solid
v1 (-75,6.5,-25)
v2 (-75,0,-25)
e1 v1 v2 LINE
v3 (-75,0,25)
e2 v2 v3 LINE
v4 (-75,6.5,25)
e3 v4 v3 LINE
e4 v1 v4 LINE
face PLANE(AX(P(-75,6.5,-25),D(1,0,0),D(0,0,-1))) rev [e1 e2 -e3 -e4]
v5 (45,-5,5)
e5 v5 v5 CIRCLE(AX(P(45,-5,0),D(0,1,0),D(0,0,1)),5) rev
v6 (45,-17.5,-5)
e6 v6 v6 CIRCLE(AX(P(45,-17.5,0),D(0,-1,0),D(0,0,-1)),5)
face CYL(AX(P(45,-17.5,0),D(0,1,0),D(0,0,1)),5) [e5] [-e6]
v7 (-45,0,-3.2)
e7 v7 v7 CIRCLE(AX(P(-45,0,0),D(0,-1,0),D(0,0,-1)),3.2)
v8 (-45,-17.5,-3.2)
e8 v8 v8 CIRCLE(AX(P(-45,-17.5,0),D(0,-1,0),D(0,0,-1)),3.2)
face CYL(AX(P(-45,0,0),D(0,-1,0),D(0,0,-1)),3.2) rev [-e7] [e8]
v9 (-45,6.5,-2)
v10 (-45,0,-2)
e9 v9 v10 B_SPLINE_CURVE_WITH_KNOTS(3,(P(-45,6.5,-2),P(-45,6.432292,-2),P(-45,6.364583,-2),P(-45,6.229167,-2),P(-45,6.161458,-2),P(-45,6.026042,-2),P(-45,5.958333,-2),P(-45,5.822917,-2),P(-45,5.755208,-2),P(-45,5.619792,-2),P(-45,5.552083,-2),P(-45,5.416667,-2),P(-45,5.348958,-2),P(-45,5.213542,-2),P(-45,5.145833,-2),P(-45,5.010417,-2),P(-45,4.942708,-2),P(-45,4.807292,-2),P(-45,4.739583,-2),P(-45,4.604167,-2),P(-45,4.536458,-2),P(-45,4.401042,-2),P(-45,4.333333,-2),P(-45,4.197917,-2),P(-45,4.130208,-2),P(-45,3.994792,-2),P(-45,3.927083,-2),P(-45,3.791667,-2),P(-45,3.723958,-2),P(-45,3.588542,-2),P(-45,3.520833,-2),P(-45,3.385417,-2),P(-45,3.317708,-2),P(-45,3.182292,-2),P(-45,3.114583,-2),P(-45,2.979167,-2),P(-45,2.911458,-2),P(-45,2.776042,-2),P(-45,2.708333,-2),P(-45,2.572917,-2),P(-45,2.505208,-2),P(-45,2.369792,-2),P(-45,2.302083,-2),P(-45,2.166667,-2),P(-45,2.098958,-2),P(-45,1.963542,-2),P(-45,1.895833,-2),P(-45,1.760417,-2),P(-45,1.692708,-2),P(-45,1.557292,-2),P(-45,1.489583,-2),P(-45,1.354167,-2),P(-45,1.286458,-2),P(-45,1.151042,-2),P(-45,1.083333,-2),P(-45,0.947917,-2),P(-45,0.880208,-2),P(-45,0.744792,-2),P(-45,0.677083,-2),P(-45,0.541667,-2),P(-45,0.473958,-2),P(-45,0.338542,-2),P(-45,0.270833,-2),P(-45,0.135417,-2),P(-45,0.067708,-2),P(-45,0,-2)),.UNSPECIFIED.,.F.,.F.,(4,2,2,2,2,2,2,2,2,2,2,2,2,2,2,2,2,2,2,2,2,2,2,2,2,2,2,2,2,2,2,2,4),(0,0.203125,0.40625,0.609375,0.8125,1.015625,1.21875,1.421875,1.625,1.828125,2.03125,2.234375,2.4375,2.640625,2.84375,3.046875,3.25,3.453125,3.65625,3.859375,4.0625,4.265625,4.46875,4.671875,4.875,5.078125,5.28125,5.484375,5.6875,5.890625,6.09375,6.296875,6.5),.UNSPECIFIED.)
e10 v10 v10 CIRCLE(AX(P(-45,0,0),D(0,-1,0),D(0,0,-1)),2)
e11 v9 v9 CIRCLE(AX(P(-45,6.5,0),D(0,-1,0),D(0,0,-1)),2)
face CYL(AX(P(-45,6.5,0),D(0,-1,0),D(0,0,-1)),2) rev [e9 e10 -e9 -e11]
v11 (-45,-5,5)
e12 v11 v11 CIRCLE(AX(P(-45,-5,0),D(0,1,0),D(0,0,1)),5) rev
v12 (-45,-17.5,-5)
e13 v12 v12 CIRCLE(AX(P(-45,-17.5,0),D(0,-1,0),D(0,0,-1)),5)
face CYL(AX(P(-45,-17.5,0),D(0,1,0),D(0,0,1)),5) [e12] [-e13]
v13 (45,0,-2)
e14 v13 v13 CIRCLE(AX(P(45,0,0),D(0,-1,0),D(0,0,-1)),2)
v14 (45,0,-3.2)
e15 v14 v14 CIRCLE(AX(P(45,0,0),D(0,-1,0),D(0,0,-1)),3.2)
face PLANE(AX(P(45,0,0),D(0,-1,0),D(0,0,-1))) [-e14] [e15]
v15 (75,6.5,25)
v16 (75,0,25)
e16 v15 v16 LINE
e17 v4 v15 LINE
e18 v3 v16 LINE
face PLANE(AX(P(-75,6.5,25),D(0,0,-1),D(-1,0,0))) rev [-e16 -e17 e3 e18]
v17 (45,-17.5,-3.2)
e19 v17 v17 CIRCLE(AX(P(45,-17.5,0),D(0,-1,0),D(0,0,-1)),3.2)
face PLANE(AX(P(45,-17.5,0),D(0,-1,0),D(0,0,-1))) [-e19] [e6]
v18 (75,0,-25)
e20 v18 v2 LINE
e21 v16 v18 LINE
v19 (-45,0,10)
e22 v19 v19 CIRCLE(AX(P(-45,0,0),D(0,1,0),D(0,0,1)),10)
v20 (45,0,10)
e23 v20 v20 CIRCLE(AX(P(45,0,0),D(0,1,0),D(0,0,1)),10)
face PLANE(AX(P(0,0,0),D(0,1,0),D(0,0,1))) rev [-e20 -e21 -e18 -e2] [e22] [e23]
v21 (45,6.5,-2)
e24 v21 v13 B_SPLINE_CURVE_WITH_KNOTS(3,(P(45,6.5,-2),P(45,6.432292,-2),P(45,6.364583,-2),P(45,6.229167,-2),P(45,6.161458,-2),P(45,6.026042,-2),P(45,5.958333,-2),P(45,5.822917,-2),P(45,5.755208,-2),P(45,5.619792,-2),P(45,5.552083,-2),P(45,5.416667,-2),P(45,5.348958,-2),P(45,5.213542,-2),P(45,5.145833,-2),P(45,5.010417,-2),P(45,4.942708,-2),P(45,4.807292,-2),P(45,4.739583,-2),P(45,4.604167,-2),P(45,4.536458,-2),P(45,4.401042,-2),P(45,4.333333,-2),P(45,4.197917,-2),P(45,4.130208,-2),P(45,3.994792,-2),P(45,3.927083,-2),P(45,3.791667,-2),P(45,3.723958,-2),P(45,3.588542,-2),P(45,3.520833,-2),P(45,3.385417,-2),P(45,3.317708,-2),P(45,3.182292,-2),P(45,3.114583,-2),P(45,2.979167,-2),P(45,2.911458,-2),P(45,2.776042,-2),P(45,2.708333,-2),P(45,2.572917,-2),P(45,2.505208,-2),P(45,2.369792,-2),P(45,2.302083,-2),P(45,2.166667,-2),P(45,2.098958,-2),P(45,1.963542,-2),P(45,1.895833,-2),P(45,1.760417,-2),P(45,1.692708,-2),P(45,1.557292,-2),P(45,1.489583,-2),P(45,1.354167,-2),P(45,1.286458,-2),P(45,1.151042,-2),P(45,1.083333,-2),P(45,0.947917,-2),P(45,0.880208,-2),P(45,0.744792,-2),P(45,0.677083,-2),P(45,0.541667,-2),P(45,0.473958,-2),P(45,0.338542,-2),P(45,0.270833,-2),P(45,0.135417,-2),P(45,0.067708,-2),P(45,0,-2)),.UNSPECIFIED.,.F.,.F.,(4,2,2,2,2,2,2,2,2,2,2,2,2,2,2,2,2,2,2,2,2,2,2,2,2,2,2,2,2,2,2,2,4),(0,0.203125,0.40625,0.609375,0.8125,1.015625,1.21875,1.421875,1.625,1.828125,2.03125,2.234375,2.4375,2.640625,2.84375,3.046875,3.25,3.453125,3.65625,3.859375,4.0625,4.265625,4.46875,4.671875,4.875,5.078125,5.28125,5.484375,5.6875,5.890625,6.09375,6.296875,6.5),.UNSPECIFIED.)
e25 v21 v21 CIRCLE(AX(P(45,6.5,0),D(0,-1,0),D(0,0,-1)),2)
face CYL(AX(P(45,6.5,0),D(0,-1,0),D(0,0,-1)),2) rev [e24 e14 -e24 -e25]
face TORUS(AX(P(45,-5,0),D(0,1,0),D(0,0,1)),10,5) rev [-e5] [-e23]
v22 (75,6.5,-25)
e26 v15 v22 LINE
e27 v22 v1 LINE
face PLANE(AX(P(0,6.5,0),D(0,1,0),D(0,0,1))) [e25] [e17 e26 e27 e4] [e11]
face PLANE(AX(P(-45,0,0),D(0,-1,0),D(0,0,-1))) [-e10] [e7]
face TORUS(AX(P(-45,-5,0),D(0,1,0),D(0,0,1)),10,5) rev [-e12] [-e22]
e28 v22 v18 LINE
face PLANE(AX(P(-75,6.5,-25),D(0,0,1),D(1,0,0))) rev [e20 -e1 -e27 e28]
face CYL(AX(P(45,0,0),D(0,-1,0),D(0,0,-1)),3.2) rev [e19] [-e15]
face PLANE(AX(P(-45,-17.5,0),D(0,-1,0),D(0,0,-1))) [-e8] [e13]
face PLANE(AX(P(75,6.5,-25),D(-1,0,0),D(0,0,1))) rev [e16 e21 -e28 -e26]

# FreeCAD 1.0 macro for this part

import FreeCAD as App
import Part
import Sketcher


def edges_at(feature, points):
    """Names of the edges that pass closest to the given points."""
    edges = feature.Shape.Edges
    near = lambda p: min(range(len(edges)), key=lambda i: edges[i].distToShape(Part.Vertex(*p))[0])
    return sorted({f"Edge{near(p) + 1}" for p in points})


def add_polygon(sketch, points):
    """Adds a closed chain of lines whose ends are joined by coincident constraints."""
    first, n = sketch.GeometryCount, len(points)
    for a, b in zip(points, points[1:] + points[:1]):
        sketch.addGeometry(Part.LineSegment(App.Vector(*a, 0), App.Vector(*b, 0)), False)
    for i in range(n):
        sketch.addConstraint(Sketcher.Constraint("Coincident", first + i, 2, first + (i + 1) % n, 1))

doc = App.newDocument("Part")
params = doc.addObject("Spreadsheet::Sheet", "Params")
for row, (alias, value) in enumerate([
    ("sketch1_width", "150 mm"),
    ("sketch1_height", "50 mm"),
    ("pad1_length", "6.5 mm"),
    ("sketch2_diameter", "10 mm"),
    ("pad2_length", "17.5 mm"),
    ("fillet_radius", "5 mm"),
    ("sketch3_diameter", "6.4 mm"),
    ("pocket1_length", "17.5 mm"),
    ("sketch4_diameter", "4 mm"),
    ("pocket2_length", "6.5 mm"),
], start=1):
    params.set(f"A{row}", alias)
    params.set(f"B{row}", "=" + value)
    params.setAlias(f"B{row}", alias)

body = doc.addObject("PartDesign::Body", "Body")

# Sketch on XZ plane
sketch1 = body.newObject("Sketcher::SketchObject", "Sketch")
sketch1.AttachmentSupport = (doc.getObject("XZ_Plane"), [""])
sketch1.MapMode = "FlatFace"
add_polygon(sketch1, [(-75, -25), (-75, 25), (75, 25), (75, -25)])  # lines 0-3
sketch1.addConstraint([
    Sketcher.Constraint("Vertical", 0),
    Sketcher.Constraint("Horizontal", 1),
    Sketcher.Constraint("Vertical", 2),
    Sketcher.Constraint("Horizontal", 3),
    Sketcher.Constraint("Symmetric", 0, 2, 2, 2, -1, 1),
    Sketcher.Constraint("DistanceX", 1, 1, 1, 2, 150.0),
    Sketcher.Constraint("DistanceY", 0, 1, 0, 2, 50.0),
])
sketch1.setExpression("Constraints[9]", "Params.sketch1_width")
sketch1.setExpression("Constraints[10]", "Params.sketch1_height")
pad1 = body.newObject("PartDesign::Pad", "Pad")
pad1.Profile = sketch1
pad1.setExpression("Length", "Params.pad1_length")
pad1.Reversed = True

# Sketch on XZ plane
sketch2 = body.newObject("Sketcher::SketchObject", "Sketch001")
sketch2.AttachmentSupport = (doc.getObject("XZ_Plane"), [""])
sketch2.MapMode = "FlatFace"
sketch2.addGeometry([
    Part.Circle(App.Vector(45, 0, 0), App.Vector(0, 0, 1), 5),
    Part.Circle(App.Vector(-45, 0, 0), App.Vector(0, 0, 1), 5),
], False)
sketch2.addConstraint([
    Sketcher.Constraint("Equal", 0, 1),
    Sketcher.Constraint("Symmetric", 0, 3, 1, 3, -1, 1),
    Sketcher.Constraint("PointOnObject", 0, 3, -1),
    Sketcher.Constraint("Diameter", 0, 10.0),
    Sketcher.Constraint("DistanceX", -1, 1, 0, 3, 45.0),
])
sketch2.setExpression("Constraints[3]", "Params.sketch2_diameter")
pad2 = body.newObject("PartDesign::Pad", "Pad001")
pad2.Profile = sketch2
pad2.setExpression("Length", "Params.pad2_length")
doc.recompute()

fillet = body.newObject("PartDesign::Fillet", "Fillet")
fillet.Base = (pad2, edges_at(pad2, [(45, 0, -5), (-45, 0, -5)]))
fillet.setExpression("Radius", "Params.fillet_radius")

# Sketch on XZ plane
sketch3 = body.newObject("Sketcher::SketchObject", "Sketch002")
sketch3.AttachmentSupport = (doc.getObject("XZ_Plane"), [""])
sketch3.MapMode = "FlatFace"
sketch3.AttachmentOffset = App.Placement(App.Vector(0, 0, 17.5), App.Rotation())
sketch3.addGeometry([
    Part.Circle(App.Vector(45, 0, 0), App.Vector(0, 0, 1), 3.2),
    Part.Circle(App.Vector(-45, 0, 0), App.Vector(0, 0, 1), 3.2),
], False)
sketch3.addConstraint([
    Sketcher.Constraint("Equal", 0, 1),
    Sketcher.Constraint("Symmetric", 0, 3, 1, 3, -1, 1),
    Sketcher.Constraint("PointOnObject", 0, 3, -1),
    Sketcher.Constraint("Diameter", 0, 6.4),
    Sketcher.Constraint("DistanceX", -1, 1, 0, 3, 45.0),
])
sketch3.setExpression("Constraints[3]", "Params.sketch3_diameter")
pocket1 = body.newObject("PartDesign::Pocket", "Pocket")
pocket1.Profile = sketch3
pocket1.setExpression("Length", "Params.pocket1_length")

# Sketch on XZ plane
sketch4 = body.newObject("Sketcher::SketchObject", "Sketch003")
sketch4.AttachmentSupport = (doc.getObject("XZ_Plane"), [""])
sketch4.MapMode = "FlatFace"
sketch4.addGeometry([
    Part.Circle(App.Vector(45, 0, 0), App.Vector(0, 0, 1), 2),
    Part.Circle(App.Vector(-45, 0, 0), App.Vector(0, 0, 1), 2),
], False)
sketch4.addConstraint([
    Sketcher.Constraint("Equal", 0, 1),
    Sketcher.Constraint("Symmetric", 0, 3, 1, 3, -1, 1),
    Sketcher.Constraint("PointOnObject", 0, 3, -1),
    Sketcher.Constraint("Diameter", 0, 4.0),
    Sketcher.Constraint("DistanceX", -1, 1, 0, 3, 45.0),
])
sketch4.setExpression("Constraints[3]", "Params.sketch4_diameter")
pocket2 = body.newObject("PartDesign::Pocket", "Pocket001")
pocket2.Profile = sketch4
pocket2.setExpression("Length", "Params.pocket2_length")

doc.recompute()
